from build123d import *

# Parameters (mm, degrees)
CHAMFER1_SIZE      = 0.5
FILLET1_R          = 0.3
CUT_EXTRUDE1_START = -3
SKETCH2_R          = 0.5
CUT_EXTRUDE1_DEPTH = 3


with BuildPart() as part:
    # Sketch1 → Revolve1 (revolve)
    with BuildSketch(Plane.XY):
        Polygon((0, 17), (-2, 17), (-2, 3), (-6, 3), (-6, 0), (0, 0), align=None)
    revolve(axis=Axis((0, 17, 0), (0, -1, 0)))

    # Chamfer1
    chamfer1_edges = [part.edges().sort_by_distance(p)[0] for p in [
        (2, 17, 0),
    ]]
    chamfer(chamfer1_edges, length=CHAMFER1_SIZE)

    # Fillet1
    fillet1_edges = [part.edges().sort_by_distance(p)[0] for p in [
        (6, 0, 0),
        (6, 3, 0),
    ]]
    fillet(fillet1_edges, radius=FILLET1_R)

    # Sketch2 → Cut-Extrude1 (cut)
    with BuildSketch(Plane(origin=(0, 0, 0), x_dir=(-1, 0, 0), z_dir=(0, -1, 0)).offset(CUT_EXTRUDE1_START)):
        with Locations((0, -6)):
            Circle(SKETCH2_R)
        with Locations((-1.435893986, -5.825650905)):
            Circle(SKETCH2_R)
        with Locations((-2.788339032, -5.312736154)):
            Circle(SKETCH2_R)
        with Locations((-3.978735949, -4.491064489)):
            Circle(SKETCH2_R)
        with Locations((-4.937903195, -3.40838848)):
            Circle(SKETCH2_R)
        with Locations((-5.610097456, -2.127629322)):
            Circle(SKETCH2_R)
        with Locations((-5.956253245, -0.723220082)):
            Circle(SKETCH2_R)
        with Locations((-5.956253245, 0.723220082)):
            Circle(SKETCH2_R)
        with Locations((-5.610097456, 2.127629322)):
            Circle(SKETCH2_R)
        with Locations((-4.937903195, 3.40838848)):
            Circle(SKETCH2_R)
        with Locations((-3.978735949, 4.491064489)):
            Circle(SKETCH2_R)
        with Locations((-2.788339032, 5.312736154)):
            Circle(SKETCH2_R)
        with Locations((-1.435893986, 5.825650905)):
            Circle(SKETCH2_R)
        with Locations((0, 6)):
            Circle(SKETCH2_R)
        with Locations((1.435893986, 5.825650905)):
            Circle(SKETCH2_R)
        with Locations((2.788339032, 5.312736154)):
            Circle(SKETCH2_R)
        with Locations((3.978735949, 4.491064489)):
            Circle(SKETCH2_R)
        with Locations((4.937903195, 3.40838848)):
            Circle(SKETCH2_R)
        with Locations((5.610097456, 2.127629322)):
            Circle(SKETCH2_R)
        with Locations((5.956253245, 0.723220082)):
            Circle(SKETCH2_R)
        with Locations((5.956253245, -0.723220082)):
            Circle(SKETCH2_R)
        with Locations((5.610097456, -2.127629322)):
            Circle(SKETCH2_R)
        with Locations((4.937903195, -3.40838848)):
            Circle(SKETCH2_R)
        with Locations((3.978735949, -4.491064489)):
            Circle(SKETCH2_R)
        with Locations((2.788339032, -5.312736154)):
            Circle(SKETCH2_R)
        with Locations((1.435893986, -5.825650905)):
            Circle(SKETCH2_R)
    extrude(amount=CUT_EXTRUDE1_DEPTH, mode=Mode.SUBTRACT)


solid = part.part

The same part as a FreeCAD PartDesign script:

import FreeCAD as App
import Part
import Sketcher
from FreeCAD import Vector


def edges_at(feature, points):
    """Names of the edges that pass closest to the given points."""
    edges = feature.Shape.Edges
    near = lambda p: min(range(len(edges)), key=lambda i: edges[i].distToShape(Part.Vertex(*p))[0])
    return sorted({f"Edge{near(p) + 1}" for p in points})

doc = App.newDocument("Part")
body = doc.addObject("PartDesign::Body", "Body")

sketch1 = body.newObject("Sketcher::SketchObject", "Sketch")
sketch1.AttachmentSupport = (doc.getObject("XY_Plane"), [""])
sketch1.MapMode = "FlatFace"
sketch1.addGeometry(Part.LineSegment(Vector(0, 17, 0), Vector(-2, 17, 0)), False)
sketch1.addGeometry(Part.LineSegment(Vector(-2, 17, 0), Vector(-2, 3, 0)), False)
sketch1.addGeometry(Part.LineSegment(Vector(-2, 3, 0), Vector(-6, 3, 0)), False)
sketch1.addGeometry(Part.LineSegment(Vector(-6, 3, 0), Vector(-6, 0, 0)), False)
sketch1.addGeometry(Part.LineSegment(Vector(-6, 0, 0), Vector(0, 0, 0)), False)
sketch1.addGeometry(Part.LineSegment(Vector(0, 0, 0), Vector(0, 17, 0)), False)
sketch1.addConstraint(Sketcher.Constraint("Coincident", 0, 2, 1, 1))
sketch1.addConstraint(Sketcher.Constraint("Coincident", 1, 2, 2, 1))
sketch1.addConstraint(Sketcher.Constraint("Coincident", 2, 2, 3, 1))
sketch1.addConstraint(Sketcher.Constraint("Coincident", 3, 2, 4, 1))
sketch1.addConstraint(Sketcher.Constraint("Coincident", 4, 2, 5, 1))
sketch1.addConstraint(Sketcher.Constraint("Coincident", 5, 2, 0, 1))
sketch1.addConstraint(Sketcher.Constraint("Horizontal", 0))
sketch1.addConstraint(Sketcher.Constraint("Vertical", 1))
sketch1.addConstraint(Sketcher.Constraint("Horizontal", 2))
sketch1.addConstraint(Sketcher.Constraint("Vertical", 3))
sketch1.addConstraint(Sketcher.Constraint("Horizontal", 4))
sketch1.addConstraint(Sketcher.Constraint("Vertical", 5))
sketch1.addConstraint(Sketcher.Constraint("Coincident", 4, 2, -1, 1))
sketch1.addConstraint(Sketcher.Constraint("DistanceX", 0, 2, 0, 1, 2.0))
sketch1.addConstraint(Sketcher.Constraint("DistanceX", 2, 2, 2, 1, 4.0))
sketch1.addConstraint(Sketcher.Constraint("DistanceY", 1, 2, 1, 1, 14.0))
sketch1.addConstraint(Sketcher.Constraint("DistanceY", 3, 2, 3, 1, 3.0))
revolution = body.newObject("PartDesign::Revolution", "Revolution")
revolution.Profile = sketch1
revolution.ReferenceAxis = (sketch1, ["V_Axis"])
revolution.Angle = 360
doc.recompute()

chamfer = body.newObject("PartDesign::Chamfer", "Chamfer")
chamfer.Base = (revolution, edges_at(revolution, [(2, 17, 0)]))
chamfer.Size = 0.5
doc.recompute()

fillet = body.newObject("PartDesign::Fillet", "Fillet")
fillet.Base = (chamfer, edges_at(chamfer, [(6, 0, 0), (6, 3, 0)]))
fillet.Radius = 0.3

sketch2 = body.newObject("Sketcher::SketchObject", "Sketch001")
sketch2.AttachmentSupport = (doc.getObject("XZ_Plane"), [""])
sketch2.MapMode = "FlatFace"
sketch2.AttachmentOffset = App.Placement(Vector(0, 0, -3), App.Rotation())
sketch2.addGeometry(Part.Circle(Vector(0, 6, 0), Vector(0, 0, 1), 0.5), False)
sketch2.addGeometry(Part.Circle(Vector(1.435894, 5.825651, 0), Vector(0, 0, 1), 0.5), False)
sketch2.addGeometry(Part.Circle(Vector(2.788339, 5.312736, 0), Vector(0, 0, 1), 0.5), False)
sketch2.addGeometry(Part.Circle(Vector(3.978736, 4.491064, 0), Vector(0, 0, 1), 0.5), False)
sketch2.addGeometry(Part.Circle(Vector(4.937903, 3.408388, 0), Vector(0, 0, 1), 0.5), False)
sketch2.addGeometry(Part.Circle(Vector(5.610097, 2.127629, 0), Vector(0, 0, 1), 0.5), False)
sketch2.addGeometry(Part.Circle(Vector(5.956253, 0.72322, 0), Vector(0, 0, 1), 0.5), False)
sketch2.addGeometry(Part.Circle(Vector(5.956253, -0.72322, 0), Vector(0, 0, 1), 0.5), False)
sketch2.addGeometry(Part.Circle(Vector(5.610097, -2.127629, 0), Vector(0, 0, 1), 0.5), False)
sketch2.addGeometry(Part.Circle(Vector(4.937903, -3.408388, 0), Vector(0, 0, 1), 0.5), False)
sketch2.addGeometry(Part.Circle(Vector(3.978736, -4.491064, 0), Vector(0, 0, 1), 0.5), False)
sketch2.addGeometry(Part.Circle(Vector(2.788339, -5.312736, 0), Vector(0, 0, 1), 0.5), False)
sketch2.addGeometry(Part.Circle(Vector(1.435894, -5.825651, 0), Vector(0, 0, 1), 0.5), False)
sketch2.addGeometry(Part.Circle(Vector(0, -6, 0), Vector(0, 0, 1), 0.5), False)
sketch2.addGeometry(Part.Circle(Vector(-1.435894, -5.825651, 0), Vector(0, 0, 1), 0.5), False)
sketch2.addGeometry(Part.Circle(Vector(-2.788339, -5.312736, 0), Vector(0, 0, 1), 0.5), False)
sketch2.addGeometry(Part.Circle(Vector(-3.978736, -4.491064, 0), Vector(0, 0, 1), 0.5), False)
sketch2.addGeometry(Part.Circle(Vector(-4.937903, -3.408388, 0), Vector(0, 0, 1), 0.5), False)
sketch2.addGeometry(Part.Circle(Vector(-5.610097, -2.127629, 0), Vector(0, 0, 1), 0.5), False)
sketch2.addGeometry(Part.Circle(Vector(-5.956253, -0.72322, 0), Vector(0, 0, 1), 0.5), False)
sketch2.addGeometry(Part.Circle(Vector(-5.956253, 0.72322, 0), Vector(0, 0, 1), 0.5), False)
sketch2.addGeometry(Part.Circle(Vector(-5.610097, 2.127629, 0), Vector(0, 0, 1), 0.5), False)
sketch2.addGeometry(Part.Circle(Vector(-4.937903, 3.408388, 0), Vector(0, 0, 1), 0.5), False)
sketch2.addGeometry(Part.Circle(Vector(-3.978736, 4.491064, 0), Vector(0, 0, 1), 0.5), False)
sketch2.addGeometry(Part.Circle(Vector(-2.788339, 5.312736, 0), Vector(0, 0, 1), 0.5), False)
sketch2.addGeometry(Part.Circle(Vector(-1.435894, 5.825651, 0), Vector(0, 0, 1), 0.5), False)
sketch2.addConstraint(Sketcher.Constraint("Equal", 0, 1))
sketch2.addConstraint(Sketcher.Constraint("Equal", 1, 2))
sketch2.addConstraint(Sketcher.Constraint("Equal", 2, 3))
sketch2.addConstraint(Sketcher.Constraint("Equal", 3, 4))
sketch2.addConstraint(Sketcher.Constraint("Equal", 4, 5))
sketch2.addConstraint(Sketcher.Constraint("Equal", 5, 6))
sketch2.addConstraint(Sketcher.Constraint("Equal", 6, 7))
sketch2.addConstraint(Sketcher.Constraint("Equal", 7, 8))
sketch2.addConstraint(Sketcher.Constraint("Equal", 8, 9))
sketch2.addConstraint(Sketcher.Constraint("Equal", 9, 10))
sketch2.addConstraint(Sketcher.Constraint("Equal", 10, 11))
sketch2.addConstraint(Sketcher.Constraint("Equal", 11, 12))
sketch2.addConstraint(Sketcher.Constraint("Equal", 12, 13))
sketch2.addConstraint(Sketcher.Constraint("Equal", 13, 14))
sketch2.addConstraint(Sketcher.Constraint("Equal", 14, 15))
sketch2.addConstraint(Sketcher.Constraint("Equal", 15, 16))
sketch2.addConstraint(Sketcher.Constraint("Equal", 16, 17))
sketch2.addConstraint(Sketcher.Constraint("Equal", 17, 18))
sketch2.addConstraint(Sketcher.Constraint("Equal", 18, 19))
sketch2.addConstraint(Sketcher.Constraint("Equal", 19, 20))
sketch2.addConstraint(Sketcher.Constraint("Equal", 20, 21))
sketch2.addConstraint(Sketcher.Constraint("Equal", 21, 22))
sketch2.addConstraint(Sketcher.Constraint("Equal", 22, 23))
sketch2.addConstraint(Sketcher.Constraint("Equal", 23, 24))
sketch2.addConstraint(Sketcher.Constraint("Equal", 24, 25))
sketch2.addConstraint(Sketcher.Constraint("Symmetric", 0, 3, 13, 3, -1, 1))
sketch2.addConstraint(Sketcher.Constraint("Symmetric", 1, 3, 14, 3, -1, 1))
sketch2.addConstraint(Sketcher.Constraint("Symmetric", 2, 3, 15, 3, -1, 1))
sketch2.addConstraint(Sketcher.Constraint("Symmetric", 3, 3, 16, 3, -1, 1))
sketch2.addConstraint(Sketcher.Constraint("Symmetric", 4, 3, 17, 3, -1, 1))
sketch2.addConstraint(Sketcher.Constraint("Symmetric", 5, 3, 18, 3, -1, 1))
sketch2.addConstraint(Sketcher.Constraint("Symmetric", 6, 3, 19, 3, -1, 1))
sketch2.addConstraint(Sketcher.Constraint("Symmetric", 7, 3, 20, 3, -1, 1))
sketch2.addConstraint(Sketcher.Constraint("Symmetric", 8, 3, 21, 3, -1, 1))
sketch2.addConstraint(Sketcher.Constraint("Symmetric", 9, 3, 22, 3, -1, 1))
sketch2.addConstraint(Sketcher.Constraint("Symmetric", 10, 3, 23, 3, -1, 1))
sketch2.addConstraint(Sketcher.Constraint("Symmetric", 11, 3, 24, 3, -1, 1))
sketch2.addConstraint(Sketcher.Constraint("Symmetric", 12, 3, 25, 3, -1, 1))
sketch2.addConstraint(Sketcher.Constraint("Symmetric", 12, 3, 14, 3, -2))
sketch2.addConstraint(Sketcher.Constraint("Symmetric", 11, 3, 15, 3, -2))
sketch2.addConstraint(Sketcher.Constraint("Symmetric", 10, 3, 16, 3, -2))
sketch2.addConstraint(Sketcher.Constraint("Symmetric", 9, 3, 17, 3, -2))
sketch2.addConstraint(Sketcher.Constraint("Symmetric", 8, 3, 18, 3, -2))
sketch2.addConstraint(Sketcher.Constraint("Symmetric", 7, 3, 19, 3, -2))
sketch2.addConstraint(Sketcher.Constraint("PointOnObject", 0, 3, -2))
sketch2.addConstraint(Sketcher.Constraint("Diameter", 0, 1.0))
sketch2.addConstraint(Sketcher.Constraint("DistanceY", -1, 1, 0, 3, 6.0))
sketch2.addConstraint(Sketcher.Constraint("DistanceY", -1, 1, 1, 3, 5.825651))
sketch2.addConstraint(Sketcher.Constraint("DistanceX", -1, 1, 2, 3, 2.788339))
sketch2.addConstraint(Sketcher.Constraint("DistanceY", -1, 1, 4, 3, 3.408388))
sketch2.addConstraint(Sketcher.Constraint("DistanceY", -1, 1, 5, 3, 2.127629))
sketch2.addConstraint(Sketcher.Constraint("DistanceY", -1, 1, 6, 3, 0.72322))
sketch2.addConstraint(Sketcher.Constraint("DistanceY", 3, 3, 2, 3, 0.821672))
sketch2.addConstraint(Sketcher.Constraint("DistanceX", 1, 3, 3, 3, 2.542842))
sketch2.addConstraint(Sketcher.Constraint("DistanceX", 1, 3, 4, 3, 3.502009))
sketch2.addConstraint(Sketcher.Constraint("DistanceX", 3, 3, 5, 3, 1.631362))
sketch2.addConstraint(Sketcher.Constraint("DistanceX", 2, 3, 5, 3, 2.821758))
sketch2.addConstraint(Sketcher.Constraint("DistanceX", 4, 3, 6, 3, 1.01835))
sketch2.addConstraint(Sketcher.Constraint("DistanceY", -1, 1, 2, 3, 5.312736))
pocket1 = body.newObject("PartDesign::Pocket", "Pocket")
pocket1.Profile = sketch2
pocket1.Length = 3
pocket1.Reversed = True

doc.recompute()
